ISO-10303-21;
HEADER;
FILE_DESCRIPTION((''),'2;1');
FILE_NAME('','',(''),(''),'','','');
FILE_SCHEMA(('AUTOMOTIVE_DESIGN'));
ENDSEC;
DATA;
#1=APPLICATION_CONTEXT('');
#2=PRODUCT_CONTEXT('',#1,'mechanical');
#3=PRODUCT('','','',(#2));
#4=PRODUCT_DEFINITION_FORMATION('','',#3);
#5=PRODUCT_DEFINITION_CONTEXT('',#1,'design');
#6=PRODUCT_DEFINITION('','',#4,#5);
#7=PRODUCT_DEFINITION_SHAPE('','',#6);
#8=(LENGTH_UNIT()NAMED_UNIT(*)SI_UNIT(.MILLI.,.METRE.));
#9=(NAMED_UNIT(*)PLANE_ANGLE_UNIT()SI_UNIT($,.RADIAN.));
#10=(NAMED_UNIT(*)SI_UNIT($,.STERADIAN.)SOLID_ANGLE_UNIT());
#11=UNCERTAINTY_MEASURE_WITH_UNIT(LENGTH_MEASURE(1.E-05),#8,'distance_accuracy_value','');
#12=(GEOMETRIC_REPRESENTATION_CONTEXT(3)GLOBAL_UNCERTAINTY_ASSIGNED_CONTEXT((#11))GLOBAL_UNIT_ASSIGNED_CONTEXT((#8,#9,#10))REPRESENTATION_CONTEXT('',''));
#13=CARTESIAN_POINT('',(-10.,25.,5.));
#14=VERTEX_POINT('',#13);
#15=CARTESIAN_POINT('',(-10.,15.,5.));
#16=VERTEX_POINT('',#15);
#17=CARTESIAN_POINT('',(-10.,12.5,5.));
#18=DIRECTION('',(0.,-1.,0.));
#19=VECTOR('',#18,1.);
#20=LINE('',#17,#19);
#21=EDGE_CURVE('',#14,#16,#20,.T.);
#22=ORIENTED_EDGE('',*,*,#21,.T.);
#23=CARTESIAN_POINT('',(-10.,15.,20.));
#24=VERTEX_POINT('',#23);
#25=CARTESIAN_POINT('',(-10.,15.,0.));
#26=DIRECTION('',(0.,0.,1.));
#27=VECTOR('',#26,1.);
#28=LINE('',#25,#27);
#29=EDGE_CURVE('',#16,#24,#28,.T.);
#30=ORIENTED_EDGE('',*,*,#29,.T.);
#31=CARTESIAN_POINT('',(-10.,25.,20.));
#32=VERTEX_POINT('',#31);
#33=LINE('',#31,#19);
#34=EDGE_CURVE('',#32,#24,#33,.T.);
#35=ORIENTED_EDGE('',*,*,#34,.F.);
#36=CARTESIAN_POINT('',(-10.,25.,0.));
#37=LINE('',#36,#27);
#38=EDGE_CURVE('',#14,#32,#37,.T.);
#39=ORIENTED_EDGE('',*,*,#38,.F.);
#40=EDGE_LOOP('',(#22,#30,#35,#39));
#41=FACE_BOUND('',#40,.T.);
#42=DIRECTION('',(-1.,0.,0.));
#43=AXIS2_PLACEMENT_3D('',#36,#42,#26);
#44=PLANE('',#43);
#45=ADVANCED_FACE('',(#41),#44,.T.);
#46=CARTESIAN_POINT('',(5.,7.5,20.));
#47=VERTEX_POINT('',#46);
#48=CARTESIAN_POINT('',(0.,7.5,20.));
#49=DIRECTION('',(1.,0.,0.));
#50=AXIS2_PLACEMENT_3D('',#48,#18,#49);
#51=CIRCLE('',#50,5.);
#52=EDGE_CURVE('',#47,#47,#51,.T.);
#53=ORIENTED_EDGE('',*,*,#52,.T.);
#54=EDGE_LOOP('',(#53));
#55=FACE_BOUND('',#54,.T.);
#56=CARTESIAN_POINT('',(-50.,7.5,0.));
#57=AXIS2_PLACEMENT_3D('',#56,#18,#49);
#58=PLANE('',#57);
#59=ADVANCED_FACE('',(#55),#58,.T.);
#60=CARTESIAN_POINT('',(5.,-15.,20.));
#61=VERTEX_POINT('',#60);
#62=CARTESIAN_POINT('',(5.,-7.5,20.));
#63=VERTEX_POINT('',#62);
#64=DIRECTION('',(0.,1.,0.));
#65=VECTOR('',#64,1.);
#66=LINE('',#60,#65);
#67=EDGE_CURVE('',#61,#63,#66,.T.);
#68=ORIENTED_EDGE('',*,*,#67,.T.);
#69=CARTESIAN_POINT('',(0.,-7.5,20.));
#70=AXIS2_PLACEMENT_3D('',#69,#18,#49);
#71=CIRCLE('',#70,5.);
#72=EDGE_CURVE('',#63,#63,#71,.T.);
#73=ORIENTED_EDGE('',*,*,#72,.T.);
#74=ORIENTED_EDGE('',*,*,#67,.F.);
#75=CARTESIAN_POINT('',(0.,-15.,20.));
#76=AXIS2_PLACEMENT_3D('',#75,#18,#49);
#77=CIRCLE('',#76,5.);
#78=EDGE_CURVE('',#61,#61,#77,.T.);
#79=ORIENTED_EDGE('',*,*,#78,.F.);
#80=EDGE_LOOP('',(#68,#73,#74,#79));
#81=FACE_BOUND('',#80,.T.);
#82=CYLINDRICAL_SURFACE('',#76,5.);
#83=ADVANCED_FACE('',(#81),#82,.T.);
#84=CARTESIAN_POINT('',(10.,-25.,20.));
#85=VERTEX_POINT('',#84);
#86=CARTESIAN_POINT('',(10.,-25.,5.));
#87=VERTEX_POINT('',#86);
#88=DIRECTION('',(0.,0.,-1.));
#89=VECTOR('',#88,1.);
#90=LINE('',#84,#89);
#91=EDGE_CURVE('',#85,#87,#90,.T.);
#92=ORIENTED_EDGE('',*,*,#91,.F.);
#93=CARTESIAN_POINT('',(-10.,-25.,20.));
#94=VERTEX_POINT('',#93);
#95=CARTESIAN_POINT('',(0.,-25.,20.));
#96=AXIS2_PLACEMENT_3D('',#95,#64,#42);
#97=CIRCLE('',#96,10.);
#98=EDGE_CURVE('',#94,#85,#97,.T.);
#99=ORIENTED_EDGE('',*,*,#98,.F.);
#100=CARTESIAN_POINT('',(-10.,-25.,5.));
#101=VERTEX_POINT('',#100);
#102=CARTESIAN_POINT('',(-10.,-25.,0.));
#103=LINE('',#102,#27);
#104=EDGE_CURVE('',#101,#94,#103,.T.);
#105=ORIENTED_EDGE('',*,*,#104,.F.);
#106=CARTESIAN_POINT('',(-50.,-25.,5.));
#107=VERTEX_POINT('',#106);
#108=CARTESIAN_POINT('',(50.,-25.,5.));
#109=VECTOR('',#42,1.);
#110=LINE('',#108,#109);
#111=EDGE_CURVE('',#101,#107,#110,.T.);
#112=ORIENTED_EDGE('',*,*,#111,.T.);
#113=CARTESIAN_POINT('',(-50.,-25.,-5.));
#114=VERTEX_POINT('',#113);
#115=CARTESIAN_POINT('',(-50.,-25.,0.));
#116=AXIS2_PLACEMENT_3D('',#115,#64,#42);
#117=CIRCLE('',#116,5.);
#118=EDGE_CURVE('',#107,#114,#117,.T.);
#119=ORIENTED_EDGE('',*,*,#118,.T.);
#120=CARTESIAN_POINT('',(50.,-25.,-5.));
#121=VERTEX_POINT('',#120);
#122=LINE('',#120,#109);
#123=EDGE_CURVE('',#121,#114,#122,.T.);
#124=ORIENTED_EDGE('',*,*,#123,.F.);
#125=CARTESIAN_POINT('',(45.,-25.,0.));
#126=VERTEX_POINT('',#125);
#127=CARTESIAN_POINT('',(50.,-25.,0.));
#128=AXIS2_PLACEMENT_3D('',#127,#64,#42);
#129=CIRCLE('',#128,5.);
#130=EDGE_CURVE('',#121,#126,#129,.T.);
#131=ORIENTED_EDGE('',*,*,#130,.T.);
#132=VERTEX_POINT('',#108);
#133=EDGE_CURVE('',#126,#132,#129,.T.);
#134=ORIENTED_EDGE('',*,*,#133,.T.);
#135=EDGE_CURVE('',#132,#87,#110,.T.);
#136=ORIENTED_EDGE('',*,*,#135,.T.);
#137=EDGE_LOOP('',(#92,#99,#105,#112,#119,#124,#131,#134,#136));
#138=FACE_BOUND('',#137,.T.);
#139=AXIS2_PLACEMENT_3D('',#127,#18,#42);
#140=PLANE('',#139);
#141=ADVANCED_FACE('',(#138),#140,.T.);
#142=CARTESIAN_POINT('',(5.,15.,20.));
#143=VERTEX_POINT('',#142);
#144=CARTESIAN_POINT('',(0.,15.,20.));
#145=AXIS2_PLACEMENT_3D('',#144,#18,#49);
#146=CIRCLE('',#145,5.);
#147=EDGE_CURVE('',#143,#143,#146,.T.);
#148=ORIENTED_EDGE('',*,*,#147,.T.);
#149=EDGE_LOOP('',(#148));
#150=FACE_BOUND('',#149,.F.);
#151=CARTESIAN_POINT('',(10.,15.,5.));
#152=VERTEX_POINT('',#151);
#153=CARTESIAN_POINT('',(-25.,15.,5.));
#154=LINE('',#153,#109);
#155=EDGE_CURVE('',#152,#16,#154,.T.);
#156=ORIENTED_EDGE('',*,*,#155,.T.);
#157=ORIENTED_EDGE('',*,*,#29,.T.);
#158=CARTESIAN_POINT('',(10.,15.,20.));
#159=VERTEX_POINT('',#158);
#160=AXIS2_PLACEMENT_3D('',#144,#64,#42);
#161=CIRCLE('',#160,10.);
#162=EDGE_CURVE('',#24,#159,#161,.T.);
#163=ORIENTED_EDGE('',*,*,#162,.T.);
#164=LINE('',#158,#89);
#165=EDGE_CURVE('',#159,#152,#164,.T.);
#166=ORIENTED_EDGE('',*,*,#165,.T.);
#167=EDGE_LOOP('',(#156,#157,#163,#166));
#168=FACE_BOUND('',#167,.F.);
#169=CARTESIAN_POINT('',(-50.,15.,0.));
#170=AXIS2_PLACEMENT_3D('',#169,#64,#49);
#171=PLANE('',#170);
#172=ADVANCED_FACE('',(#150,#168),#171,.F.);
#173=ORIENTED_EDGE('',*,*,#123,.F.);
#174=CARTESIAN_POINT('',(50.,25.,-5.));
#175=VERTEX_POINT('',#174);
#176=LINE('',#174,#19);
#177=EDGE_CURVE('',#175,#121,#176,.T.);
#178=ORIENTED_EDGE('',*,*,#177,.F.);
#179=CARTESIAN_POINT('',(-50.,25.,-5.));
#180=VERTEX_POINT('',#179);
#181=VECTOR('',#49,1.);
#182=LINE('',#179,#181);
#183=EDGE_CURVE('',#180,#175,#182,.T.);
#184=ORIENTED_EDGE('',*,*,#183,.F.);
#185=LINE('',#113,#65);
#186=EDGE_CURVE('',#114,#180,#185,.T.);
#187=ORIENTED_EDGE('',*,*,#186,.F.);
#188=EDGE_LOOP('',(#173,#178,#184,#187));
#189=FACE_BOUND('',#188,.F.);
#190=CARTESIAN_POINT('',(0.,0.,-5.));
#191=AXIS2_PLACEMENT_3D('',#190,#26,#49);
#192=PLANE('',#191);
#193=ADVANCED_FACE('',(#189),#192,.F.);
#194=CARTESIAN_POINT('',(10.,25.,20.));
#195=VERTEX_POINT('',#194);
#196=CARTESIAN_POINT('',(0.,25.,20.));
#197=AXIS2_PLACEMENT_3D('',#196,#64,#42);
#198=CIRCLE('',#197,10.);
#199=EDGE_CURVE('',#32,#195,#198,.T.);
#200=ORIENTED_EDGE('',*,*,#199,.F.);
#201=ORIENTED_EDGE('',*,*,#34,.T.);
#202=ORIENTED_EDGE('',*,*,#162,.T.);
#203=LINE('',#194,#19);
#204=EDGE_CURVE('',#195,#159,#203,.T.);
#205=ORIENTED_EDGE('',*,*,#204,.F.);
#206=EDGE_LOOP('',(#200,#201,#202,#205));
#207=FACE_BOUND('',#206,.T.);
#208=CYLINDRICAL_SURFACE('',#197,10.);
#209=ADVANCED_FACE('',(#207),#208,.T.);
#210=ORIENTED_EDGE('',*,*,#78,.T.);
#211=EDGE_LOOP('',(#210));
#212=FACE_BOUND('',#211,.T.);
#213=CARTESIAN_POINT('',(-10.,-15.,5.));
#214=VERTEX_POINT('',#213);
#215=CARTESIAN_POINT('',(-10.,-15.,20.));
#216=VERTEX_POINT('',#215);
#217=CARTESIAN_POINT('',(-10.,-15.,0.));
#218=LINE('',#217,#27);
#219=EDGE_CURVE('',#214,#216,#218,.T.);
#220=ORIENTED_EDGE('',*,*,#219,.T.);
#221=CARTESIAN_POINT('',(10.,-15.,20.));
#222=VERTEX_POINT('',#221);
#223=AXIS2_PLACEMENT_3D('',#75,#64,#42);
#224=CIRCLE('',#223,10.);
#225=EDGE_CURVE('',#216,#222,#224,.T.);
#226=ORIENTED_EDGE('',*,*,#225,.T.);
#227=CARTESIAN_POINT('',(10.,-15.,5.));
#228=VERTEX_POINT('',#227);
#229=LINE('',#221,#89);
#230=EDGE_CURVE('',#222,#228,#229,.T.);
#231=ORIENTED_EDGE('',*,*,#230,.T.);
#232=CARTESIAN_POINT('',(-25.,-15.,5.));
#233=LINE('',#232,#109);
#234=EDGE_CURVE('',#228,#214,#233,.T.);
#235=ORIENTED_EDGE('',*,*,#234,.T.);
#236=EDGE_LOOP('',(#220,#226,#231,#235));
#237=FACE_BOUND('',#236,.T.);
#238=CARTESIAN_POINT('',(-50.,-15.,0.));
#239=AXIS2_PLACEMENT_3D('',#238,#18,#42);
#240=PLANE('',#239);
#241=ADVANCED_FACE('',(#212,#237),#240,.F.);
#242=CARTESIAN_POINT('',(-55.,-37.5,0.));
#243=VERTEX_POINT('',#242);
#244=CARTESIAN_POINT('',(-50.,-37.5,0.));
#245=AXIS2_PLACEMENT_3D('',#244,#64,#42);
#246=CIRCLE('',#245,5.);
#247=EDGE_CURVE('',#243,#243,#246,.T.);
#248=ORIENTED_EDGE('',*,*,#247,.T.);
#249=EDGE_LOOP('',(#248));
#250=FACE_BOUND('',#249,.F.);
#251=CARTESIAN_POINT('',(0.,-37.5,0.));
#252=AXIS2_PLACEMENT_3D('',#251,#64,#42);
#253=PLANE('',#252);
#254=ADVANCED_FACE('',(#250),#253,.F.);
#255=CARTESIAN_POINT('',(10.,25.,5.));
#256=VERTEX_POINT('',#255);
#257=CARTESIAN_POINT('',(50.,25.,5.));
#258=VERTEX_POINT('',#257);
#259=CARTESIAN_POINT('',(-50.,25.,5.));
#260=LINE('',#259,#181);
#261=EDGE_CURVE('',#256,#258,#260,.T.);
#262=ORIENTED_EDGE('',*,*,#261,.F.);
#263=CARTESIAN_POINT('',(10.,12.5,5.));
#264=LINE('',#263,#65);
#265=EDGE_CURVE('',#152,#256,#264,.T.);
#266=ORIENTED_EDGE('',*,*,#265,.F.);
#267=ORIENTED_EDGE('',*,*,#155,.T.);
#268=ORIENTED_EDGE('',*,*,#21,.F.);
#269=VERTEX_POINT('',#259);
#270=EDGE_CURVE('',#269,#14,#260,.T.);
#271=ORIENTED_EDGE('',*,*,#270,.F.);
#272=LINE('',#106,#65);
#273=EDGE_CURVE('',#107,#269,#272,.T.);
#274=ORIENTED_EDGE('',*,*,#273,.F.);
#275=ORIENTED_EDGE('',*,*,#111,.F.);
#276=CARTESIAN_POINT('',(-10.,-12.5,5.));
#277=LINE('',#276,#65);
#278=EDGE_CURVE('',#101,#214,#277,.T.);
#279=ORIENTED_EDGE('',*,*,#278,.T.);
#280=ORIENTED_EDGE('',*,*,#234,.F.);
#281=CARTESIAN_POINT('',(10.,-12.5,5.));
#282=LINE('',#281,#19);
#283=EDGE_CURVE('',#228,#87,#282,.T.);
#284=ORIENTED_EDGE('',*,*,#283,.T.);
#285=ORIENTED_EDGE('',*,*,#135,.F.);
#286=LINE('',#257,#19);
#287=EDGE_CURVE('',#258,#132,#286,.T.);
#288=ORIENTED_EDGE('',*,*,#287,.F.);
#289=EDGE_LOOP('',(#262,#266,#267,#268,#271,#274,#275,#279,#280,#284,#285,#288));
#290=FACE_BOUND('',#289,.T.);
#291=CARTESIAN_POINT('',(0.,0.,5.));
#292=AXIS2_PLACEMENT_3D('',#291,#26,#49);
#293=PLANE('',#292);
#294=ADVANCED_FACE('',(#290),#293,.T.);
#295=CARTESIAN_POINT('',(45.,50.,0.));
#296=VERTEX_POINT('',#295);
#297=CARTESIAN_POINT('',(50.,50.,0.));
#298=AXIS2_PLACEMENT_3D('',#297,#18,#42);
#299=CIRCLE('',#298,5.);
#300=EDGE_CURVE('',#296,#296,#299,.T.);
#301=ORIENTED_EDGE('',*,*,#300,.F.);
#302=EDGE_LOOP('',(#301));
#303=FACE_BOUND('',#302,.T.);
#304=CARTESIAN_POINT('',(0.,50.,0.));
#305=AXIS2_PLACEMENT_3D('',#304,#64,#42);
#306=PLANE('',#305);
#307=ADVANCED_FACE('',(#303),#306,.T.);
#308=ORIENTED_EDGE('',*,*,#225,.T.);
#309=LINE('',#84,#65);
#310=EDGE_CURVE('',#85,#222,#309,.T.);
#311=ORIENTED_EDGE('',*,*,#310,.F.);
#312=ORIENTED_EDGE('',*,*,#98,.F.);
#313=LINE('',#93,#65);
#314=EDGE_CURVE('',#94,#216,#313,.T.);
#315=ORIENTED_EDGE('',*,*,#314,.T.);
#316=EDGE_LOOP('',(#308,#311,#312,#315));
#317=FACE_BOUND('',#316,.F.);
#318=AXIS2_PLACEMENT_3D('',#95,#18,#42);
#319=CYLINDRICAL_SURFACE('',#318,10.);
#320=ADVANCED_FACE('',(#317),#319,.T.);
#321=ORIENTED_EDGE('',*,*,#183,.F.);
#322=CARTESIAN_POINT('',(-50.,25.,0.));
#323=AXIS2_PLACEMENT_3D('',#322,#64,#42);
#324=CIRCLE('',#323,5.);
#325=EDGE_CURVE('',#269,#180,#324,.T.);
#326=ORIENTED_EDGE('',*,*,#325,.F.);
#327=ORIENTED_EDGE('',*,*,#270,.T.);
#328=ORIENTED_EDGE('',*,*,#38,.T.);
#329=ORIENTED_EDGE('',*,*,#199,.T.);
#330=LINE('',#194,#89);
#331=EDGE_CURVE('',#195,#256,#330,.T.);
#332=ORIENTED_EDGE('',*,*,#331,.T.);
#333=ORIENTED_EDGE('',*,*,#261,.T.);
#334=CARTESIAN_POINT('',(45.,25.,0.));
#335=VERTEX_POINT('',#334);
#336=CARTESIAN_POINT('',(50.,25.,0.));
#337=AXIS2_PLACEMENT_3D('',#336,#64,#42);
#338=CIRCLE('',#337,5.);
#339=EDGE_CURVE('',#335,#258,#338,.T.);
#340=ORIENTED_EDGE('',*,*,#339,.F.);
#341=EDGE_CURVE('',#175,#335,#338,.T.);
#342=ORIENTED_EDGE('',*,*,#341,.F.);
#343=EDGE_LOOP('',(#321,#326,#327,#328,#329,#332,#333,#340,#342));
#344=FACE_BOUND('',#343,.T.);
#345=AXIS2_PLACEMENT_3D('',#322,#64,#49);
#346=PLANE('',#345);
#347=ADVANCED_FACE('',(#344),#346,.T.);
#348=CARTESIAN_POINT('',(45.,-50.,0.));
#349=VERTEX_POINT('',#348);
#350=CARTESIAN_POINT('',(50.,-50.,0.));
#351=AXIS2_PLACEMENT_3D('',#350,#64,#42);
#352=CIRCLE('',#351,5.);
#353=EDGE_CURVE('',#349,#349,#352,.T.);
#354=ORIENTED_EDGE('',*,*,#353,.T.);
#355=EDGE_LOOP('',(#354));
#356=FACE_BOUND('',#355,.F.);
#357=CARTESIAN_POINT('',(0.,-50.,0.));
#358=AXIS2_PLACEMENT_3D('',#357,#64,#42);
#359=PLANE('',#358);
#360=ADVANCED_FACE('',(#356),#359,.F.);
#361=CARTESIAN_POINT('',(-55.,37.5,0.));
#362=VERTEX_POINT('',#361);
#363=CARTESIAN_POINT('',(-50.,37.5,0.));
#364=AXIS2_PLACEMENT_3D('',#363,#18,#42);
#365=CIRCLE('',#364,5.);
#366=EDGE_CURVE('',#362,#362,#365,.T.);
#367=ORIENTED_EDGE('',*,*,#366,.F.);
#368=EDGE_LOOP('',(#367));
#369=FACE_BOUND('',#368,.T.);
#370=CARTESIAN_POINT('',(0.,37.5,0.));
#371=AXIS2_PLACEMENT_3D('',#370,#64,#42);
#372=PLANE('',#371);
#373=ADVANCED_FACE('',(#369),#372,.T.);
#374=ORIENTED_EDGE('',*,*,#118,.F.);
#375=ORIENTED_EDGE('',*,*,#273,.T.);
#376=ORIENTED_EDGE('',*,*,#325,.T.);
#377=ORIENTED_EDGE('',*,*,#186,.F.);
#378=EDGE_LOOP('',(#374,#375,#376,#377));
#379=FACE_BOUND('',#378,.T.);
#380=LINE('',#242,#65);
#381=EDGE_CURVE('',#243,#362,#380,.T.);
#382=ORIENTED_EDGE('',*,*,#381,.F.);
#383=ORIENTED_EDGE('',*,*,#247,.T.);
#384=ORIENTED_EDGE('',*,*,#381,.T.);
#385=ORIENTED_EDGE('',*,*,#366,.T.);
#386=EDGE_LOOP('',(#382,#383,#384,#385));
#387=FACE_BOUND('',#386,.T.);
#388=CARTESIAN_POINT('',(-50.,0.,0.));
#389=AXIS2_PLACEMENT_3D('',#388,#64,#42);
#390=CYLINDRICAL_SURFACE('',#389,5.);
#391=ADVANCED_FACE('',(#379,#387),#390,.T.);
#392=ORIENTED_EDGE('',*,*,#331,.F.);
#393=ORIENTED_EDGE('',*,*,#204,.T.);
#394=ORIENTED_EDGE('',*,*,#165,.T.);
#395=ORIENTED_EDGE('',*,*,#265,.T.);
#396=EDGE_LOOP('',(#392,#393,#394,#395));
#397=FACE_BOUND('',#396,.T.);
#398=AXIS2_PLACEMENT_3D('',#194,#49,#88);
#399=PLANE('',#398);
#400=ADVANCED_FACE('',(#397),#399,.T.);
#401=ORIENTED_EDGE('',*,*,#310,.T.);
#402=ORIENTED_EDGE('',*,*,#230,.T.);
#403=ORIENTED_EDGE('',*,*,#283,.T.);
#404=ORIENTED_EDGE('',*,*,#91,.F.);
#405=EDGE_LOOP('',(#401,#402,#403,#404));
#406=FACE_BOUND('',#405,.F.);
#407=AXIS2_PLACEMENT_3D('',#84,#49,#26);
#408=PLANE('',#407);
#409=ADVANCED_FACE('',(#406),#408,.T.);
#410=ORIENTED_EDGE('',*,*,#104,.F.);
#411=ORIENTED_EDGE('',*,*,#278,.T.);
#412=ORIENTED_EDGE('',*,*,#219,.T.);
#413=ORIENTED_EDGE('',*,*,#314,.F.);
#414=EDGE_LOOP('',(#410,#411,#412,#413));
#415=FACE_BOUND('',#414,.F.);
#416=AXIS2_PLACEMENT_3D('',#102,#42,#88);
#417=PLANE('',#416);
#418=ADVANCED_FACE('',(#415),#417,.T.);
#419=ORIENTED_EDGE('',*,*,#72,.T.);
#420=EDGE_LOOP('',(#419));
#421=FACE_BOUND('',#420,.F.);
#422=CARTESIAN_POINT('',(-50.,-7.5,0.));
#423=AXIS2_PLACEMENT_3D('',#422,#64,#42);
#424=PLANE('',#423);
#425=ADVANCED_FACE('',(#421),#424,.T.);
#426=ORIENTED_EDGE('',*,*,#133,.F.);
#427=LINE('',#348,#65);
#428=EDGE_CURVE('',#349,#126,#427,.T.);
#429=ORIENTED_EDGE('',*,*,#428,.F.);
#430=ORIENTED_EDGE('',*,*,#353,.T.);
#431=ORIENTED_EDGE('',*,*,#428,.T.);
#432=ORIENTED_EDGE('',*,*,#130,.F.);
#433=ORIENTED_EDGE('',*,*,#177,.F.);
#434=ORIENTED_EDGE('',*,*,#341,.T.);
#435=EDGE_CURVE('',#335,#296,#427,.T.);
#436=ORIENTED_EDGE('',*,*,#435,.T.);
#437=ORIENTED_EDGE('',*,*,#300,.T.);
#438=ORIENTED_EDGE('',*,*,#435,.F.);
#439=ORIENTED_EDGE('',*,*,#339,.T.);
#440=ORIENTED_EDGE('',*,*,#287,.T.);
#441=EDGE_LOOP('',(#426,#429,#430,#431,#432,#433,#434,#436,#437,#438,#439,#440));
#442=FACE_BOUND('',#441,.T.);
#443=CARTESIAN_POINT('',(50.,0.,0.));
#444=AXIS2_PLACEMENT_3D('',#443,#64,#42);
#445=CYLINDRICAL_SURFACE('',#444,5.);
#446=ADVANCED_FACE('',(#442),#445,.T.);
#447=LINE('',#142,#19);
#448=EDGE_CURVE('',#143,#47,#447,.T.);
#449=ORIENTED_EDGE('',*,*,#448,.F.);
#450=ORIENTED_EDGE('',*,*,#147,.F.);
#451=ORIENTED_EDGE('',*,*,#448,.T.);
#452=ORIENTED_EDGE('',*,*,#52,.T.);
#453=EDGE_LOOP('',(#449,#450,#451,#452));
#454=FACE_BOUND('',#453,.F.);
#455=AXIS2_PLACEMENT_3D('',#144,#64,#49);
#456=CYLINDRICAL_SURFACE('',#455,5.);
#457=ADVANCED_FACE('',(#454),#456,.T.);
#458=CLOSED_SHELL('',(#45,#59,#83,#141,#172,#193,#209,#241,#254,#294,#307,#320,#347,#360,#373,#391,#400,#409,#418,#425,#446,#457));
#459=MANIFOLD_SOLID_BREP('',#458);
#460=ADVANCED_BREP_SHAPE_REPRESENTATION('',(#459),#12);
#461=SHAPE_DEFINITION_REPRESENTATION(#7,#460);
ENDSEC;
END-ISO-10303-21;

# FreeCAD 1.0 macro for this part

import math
import FreeCAD as App
import Part
import Sketcher
Q = App.Units.Quantity

doc = App.newDocument("Part")
body = doc.addObject("PartDesign::Body", "Body")

sketch1 = body.newObject("Sketcher::SketchObject", "Sketch")
sketch1.AttachmentSupport = (doc.getObject("XY_Plane"), [""])
sketch1.MapMode = "FlatFace"
sketch1.addGeometry(Part.LineSegment(App.Vector(50, 25, 0), App.Vector(-50, 25, 0)), False)
sketch1.addGeometry(Part.LineSegment(App.Vector(-50, 25, 0), App.Vector(-50, -25, 0)), False)
sketch1.addGeometry(Part.LineSegment(App.Vector(-50, -25, 0), App.Vector(50, -25, 0)), False)
sketch1.addGeometry(Part.LineSegment(App.Vector(50, -25, 0), App.Vector(50, 25, 0)), False)
sketch1.addConstraint(Sketcher.Constraint("Coincident", 0, 2, 1, 1))
sketch1.addConstraint(Sketcher.Constraint("Coincident", 1, 2, 2, 1))
sketch1.addConstraint(Sketcher.Constraint("Coincident", 2, 2, 3, 1))
sketch1.addConstraint(Sketcher.Constraint("Coincident", 3, 2, 0, 1))
sketch1.addConstraint(Sketcher.Constraint("Horizontal", 0))
sketch1.addConstraint(Sketcher.Constraint("Vertical", 1))
sketch1.addConstraint(Sketcher.Constraint("Horizontal", 2))
sketch1.addConstraint(Sketcher.Constraint("Vertical", 3))
sketch1.addConstraint(Sketcher.Constraint("Symmetric", 0, 2, 2, 2, -1, 1))
sketch1.addConstraint(Sketcher.Constraint("DistanceX", 0, 2, 0, 1, Q("100 mm")))
sketch1.addConstraint(Sketcher.Constraint("DistanceY", 1, 2, 1, 1, Q("50 mm")))
pad1 = body.newObject("PartDesign::Pad", "Pad")
pad1.Profile = sketch1
pad1.Length = 10
pad1.Midplane = True

sketch2 = body.newObject("Sketcher::SketchObject", "Sketch001")
sketch2.AttachmentSupport = (doc.getObject("XZ_Plane"), [""])
sketch2.MapMode = "FlatFace"
sketch2.addGeometry(Part.Circle(App.Vector(-50, 0, 0), App.Vector(0, 0, 1), 5), False)
sketch2.addConstraint(Sketcher.Constraint("PointOnObject", 0, 3, -1))
sketch2.addConstraint(Sketcher.Constraint("Diameter", 0, Q("10 mm")))
sketch2.addConstraint(Sketcher.Constraint("DistanceX", 0, 3, -1, 1, Q("50 mm")))
pad2 = body.newObject("PartDesign::Pad", "Pad001")
pad2.Profile = sketch2
pad2.Length = 75
pad2.Midplane = True

sketch3 = body.newObject("Sketcher::SketchObject", "Sketch002")
sketch3.AttachmentSupport = (doc.getObject("XZ_Plane"), [""])
sketch3.MapMode = "FlatFace"
sketch3.addGeometry(Part.Circle(App.Vector(50, 0, 0), App.Vector(0, 0, 1), 5), False)
sketch3.addConstraint(Sketcher.Constraint("PointOnObject", 0, 3, -1))
sketch3.addConstraint(Sketcher.Constraint("Diameter", 0, Q("10 mm")))
sketch3.addConstraint(Sketcher.Constraint("DistanceX", -1, 1, 0, 3, Q("50 mm")))
pad3 = body.newObject("PartDesign::Pad", "Pad002")
pad3.Profile = sketch3
pad3.Length = 100
pad3.Midplane = True

sketch4 = body.newObject("Sketcher::SketchObject", "Sketch003")
sketch4.AttachmentSupport = (doc.getObject("XZ_Plane"), [""])
sketch4.MapMode = "FlatFace"
sketch4.AttachmentOffset = App.Placement(App.Vector(0, 0, -25), App.Rotation())
sketch4.addGeometry(Part.LineSegment(App.Vector(10, 20, 0), App.Vector(10, 0, 0)), False)
sketch4.addGeometry(Part.LineSegment(App.Vector(10, 0, 0), App.Vector(-10, 0, 0)), False)
sketch4.addGeometry(Part.LineSegment(App.Vector(-10, 0, 0), App.Vector(-10, 20, 0)), False)
sketch4.addGeometry(Part.ArcOfCircle(Part.Circle(App.Vector(0, 20, 0), App.Vector(0, 0, 1), 10), math.radians(0), math.radians(180)), False)
sketch4.addConstraint(Sketcher.Constraint("Coincident", 0, 2, 1, 1))
sketch4.addConstraint(Sketcher.Constraint("Coincident", 1, 2, 2, 1))
sketch4.addConstraint(Sketcher.Constraint("Tangent", 2, 2, 3, 2))
sketch4.addConstraint(Sketcher.Constraint("Tangent", 3, 1, 0, 1))
sketch4.addConstraint(Sketcher.Constraint("Vertical", 0))
sketch4.addConstraint(Sketcher.Constraint("Horizontal", 1))
sketch4.addConstraint(Sketcher.Constraint("Vertical", 2))
sketch4.addConstraint(Sketcher.Constraint("Symmetric", 0, 2, 1, 2, -1, 1))
sketch4.addConstraint(Sketcher.Constraint("Equal", 1, 0))
sketch4.addConstraint(Sketcher.Constraint("Radius", 3, Q("10 mm")))
pad4 = body.newObject("PartDesign::Pad", "Pad003")
pad4.Profile = sketch4
pad4.Length = 10
doc.recompute()

mirrored = body.newObject("PartDesign::Mirrored", "Mirrored")
mirrored.Originals = [pad4]
mirrored.MirrorPlane = (doc.getObject("XZ_Plane"), [""])
body.Tip = mirrored

sketch5 = body.newObject("Sketcher::SketchObject", "Sketch004")
sketch5.AttachmentSupport = (doc.getObject("XZ_Plane"), [""])
sketch5.MapMode = "FlatFace"
sketch5.AttachmentOffset = App.Placement(App.Vector(0, 0, -15), App.Rotation())
sketch5.addGeometry(Part.Circle(App.Vector(0, 20, 0), App.Vector(0, 0, 1), 5), False)
sketch5.addConstraint(Sketcher.Constraint("PointOnObject", 0, 3, -2))
sketch5.addConstraint(Sketcher.Constraint("Diameter", 0, Q("10 mm")))
sketch5.addConstraint(Sketcher.Constraint("DistanceY", -1, 1, 0, 3, Q("20 mm")))
pad5 = body.newObject("PartDesign::Pad", "Pad004")
pad5.Profile = sketch5
pad5.Length = 7.5
doc.recompute()

mirrored2 = body.newObject("PartDesign::Mirrored", "Mirrored001")
mirrored2.Originals = [pad5]
mirrored2.MirrorPlane = (doc.getObject("XZ_Plane"), [""])
body.Tip = mirrored2

doc.recompute()
